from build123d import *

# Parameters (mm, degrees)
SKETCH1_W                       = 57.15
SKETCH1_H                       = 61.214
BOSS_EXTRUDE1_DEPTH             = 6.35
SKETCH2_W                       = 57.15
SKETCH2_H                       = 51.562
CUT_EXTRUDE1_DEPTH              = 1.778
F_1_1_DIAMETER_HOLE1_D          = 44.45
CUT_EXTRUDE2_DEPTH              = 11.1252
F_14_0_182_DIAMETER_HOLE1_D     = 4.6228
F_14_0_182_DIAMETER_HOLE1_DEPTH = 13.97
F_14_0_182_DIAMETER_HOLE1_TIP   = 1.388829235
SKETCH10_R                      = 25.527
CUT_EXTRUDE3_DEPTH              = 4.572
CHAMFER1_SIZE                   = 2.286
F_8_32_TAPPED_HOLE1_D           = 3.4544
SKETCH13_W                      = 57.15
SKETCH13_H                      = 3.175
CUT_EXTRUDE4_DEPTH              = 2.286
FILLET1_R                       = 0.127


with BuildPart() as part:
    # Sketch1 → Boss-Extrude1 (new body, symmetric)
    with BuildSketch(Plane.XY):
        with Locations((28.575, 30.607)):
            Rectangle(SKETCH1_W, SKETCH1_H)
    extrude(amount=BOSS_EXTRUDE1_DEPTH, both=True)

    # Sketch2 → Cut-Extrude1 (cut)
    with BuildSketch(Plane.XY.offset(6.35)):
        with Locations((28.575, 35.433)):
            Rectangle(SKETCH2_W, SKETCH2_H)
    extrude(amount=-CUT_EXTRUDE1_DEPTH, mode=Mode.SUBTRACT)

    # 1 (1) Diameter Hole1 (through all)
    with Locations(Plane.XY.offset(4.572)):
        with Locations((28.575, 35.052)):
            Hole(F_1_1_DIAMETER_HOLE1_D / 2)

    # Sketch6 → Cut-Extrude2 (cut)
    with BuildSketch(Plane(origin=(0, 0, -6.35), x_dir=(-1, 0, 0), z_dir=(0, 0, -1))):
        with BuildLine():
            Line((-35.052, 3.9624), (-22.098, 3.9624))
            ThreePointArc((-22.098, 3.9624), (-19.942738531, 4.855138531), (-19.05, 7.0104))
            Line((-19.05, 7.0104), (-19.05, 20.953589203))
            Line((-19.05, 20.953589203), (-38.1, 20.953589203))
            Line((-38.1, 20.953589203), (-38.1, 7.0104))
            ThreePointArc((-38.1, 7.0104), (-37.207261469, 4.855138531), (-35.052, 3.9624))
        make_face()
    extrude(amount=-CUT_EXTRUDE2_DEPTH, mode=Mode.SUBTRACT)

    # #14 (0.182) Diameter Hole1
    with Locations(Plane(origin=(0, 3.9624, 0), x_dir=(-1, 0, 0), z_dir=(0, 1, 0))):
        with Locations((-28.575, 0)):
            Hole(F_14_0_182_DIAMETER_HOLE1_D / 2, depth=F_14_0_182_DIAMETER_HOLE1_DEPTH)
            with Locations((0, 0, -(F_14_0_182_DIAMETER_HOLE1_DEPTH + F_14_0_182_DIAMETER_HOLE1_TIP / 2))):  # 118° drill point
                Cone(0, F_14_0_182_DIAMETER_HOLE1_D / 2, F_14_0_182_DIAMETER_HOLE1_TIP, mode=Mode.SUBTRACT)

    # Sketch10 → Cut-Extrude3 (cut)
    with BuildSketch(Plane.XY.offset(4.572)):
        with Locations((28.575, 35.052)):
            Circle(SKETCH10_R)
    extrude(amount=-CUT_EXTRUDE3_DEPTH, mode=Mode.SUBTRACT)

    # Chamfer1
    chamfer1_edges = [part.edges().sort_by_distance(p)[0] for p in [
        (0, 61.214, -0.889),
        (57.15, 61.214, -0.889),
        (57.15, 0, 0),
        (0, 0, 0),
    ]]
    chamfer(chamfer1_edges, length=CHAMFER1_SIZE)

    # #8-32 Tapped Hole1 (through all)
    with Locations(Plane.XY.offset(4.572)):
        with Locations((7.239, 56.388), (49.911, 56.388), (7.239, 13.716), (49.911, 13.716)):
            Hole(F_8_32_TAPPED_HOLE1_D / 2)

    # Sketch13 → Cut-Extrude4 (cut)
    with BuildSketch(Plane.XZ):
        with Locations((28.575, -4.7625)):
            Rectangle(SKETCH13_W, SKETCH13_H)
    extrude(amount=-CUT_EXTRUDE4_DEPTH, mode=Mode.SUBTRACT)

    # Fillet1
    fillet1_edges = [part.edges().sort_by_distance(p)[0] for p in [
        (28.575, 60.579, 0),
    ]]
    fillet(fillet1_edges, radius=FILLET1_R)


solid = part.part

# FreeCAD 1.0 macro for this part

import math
import FreeCAD as App
import Part
import Sketcher
Q = App.Units.Quantity


def edges_at(feature, points):
    """Names of the edges that pass closest to the given points."""
    edges = feature.Shape.Edges
    near = lambda p: min(range(len(edges)), key=lambda i: edges[i].distToShape(Part.Vertex(*p))[0])
    return sorted({f"Edge{near(p) + 1}" for p in points})

doc = App.newDocument("Part")
body = doc.addObject("PartDesign::Body", "Body")

# Sketch on XY plane
sketch1 = body.newObject("Sketcher::SketchObject", "Sketch")
sketch1.AttachmentSupport = (doc.getObject("XY_Plane"), [""])
sketch1.MapMode = "FlatFace"
sketch1.addGeometry(Part.LineSegment(App.Vector(0, 61, 0), App.Vector(0, 0, 0)), False)
sketch1.addGeometry(Part.LineSegment(App.Vector(0, 0, 0), App.Vector(57, 0, 0)), False)
sketch1.addGeometry(Part.LineSegment(App.Vector(57, 0, 0), App.Vector(57, 61, 0)), False)
sketch1.addGeometry(Part.LineSegment(App.Vector(57, 61, 0), App.Vector(0, 61, 0)), False)
sketch1.addConstraint(Sketcher.Constraint("Coincident", 0, 2, 1, 1))
sketch1.addConstraint(Sketcher.Constraint("Coincident", 1, 2, 2, 1))
sketch1.addConstraint(Sketcher.Constraint("Coincident", 2, 2, 3, 1))
sketch1.addConstraint(Sketcher.Constraint("Coincident", 3, 2, 0, 1))
sketch1.addConstraint(Sketcher.Constraint("Vertical", 0))
sketch1.addConstraint(Sketcher.Constraint("Horizontal", 1))
sketch1.addConstraint(Sketcher.Constraint("Vertical", 2))
sketch1.addConstraint(Sketcher.Constraint("Horizontal", 3))
sketch1.addConstraint(Sketcher.Constraint("Coincident", 0, 2, -1, 1))
sketch1.addConstraint(Sketcher.Constraint("DistanceX", 1, 1, 1, 2, Q("2.25 in")))
sketch1.addConstraint(Sketcher.Constraint("DistanceY", 0, 2, 0, 1, Q("2.41 in")))
pad1 = body.newObject("PartDesign::Pad", "Pad")
pad1.Profile = sketch1
pad1.Length = Q("0.5 in")
pad1.Midplane = True

# Sketch on XY plane
sketch2 = body.newObject("Sketcher::SketchObject", "Sketch001")
sketch2.AttachmentSupport = (doc.getObject("XY_Plane"), [""])
sketch2.MapMode = "FlatFace"
sketch2.AttachmentOffset = App.Placement(App.Vector(0, 0, 0.25 * 25.4), App.Rotation())
sketch2.addGeometry(Part.LineSegment(App.Vector(0, 61, 0), App.Vector(0, 10, 0)), False)
sketch2.addGeometry(Part.LineSegment(App.Vector(0, 10, 0), App.Vector(57, 10, 0)), False)
sketch2.addGeometry(Part.LineSegment(App.Vector(57, 10, 0), App.Vector(57, 61, 0)), False)
sketch2.addGeometry(Part.LineSegment(App.Vector(57, 61, 0), App.Vector(0, 61, 0)), False)
sketch2.addConstraint(Sketcher.Constraint("Coincident", 0, 2, 1, 1))
sketch2.addConstraint(Sketcher.Constraint("Coincident", 1, 2, 2, 1))
sketch2.addConstraint(Sketcher.Constraint("Coincident", 2, 2, 3, 1))
sketch2.addConstraint(Sketcher.Constraint("Coincident", 3, 2, 0, 1))
sketch2.addConstraint(Sketcher.Constraint("Vertical", 0))
sketch2.addConstraint(Sketcher.Constraint("Horizontal", 1))
sketch2.addConstraint(Sketcher.Constraint("Vertical", 2))
sketch2.addConstraint(Sketcher.Constraint("Horizontal", 3))
sketch2.addConstraint(Sketcher.Constraint("PointOnObject", 0, 2, -2))
sketch2.addConstraint(Sketcher.Constraint("DistanceX", 1, 1, 1, 2, Q("2.25 in")))
sketch2.addConstraint(Sketcher.Constraint("DistanceY", 0, 2, 0, 1, Q("2.03 in")))
sketch2.addConstraint(Sketcher.Constraint("DistanceY", -1, 1, 0, 2, Q("0.38 in")))
pocket1 = body.newObject("PartDesign::Pocket", "Pocket")
pocket1.Profile = sketch2
pocket1.Length = Q("0.07 in")

# Sketch on XY plane
sketch3 = body.newObject("Sketcher::SketchObject", "Sketch002")
sketch3.AttachmentSupport = (doc.getObject("XY_Plane"), [""])
sketch3.MapMode = "FlatFace"
sketch3.AttachmentOffset = App.Placement(App.Vector(0, 0, 0.18 * 25.4), App.Rotation())
sketch3.addGeometry(Part.Circle(App.Vector(29, 35, 0), App.Vector(0, 0, 1), 22), False)
sketch3.addConstraint(Sketcher.Constraint("Diameter", 0, Q("1.75 in")))
sketch3.addConstraint(Sketcher.Constraint("DistanceY", -1, 1, 0, 3, Q("1.38 in")))
sketch3.addConstraint(Sketcher.Constraint("DistanceX", -1, 1, 0, 3, Q("1.125 in")))
doc.recompute()
hole = body.newObject("PartDesign::Hole", "Hole")
hole.Profile = sketch3
hole.ThreadType = "None"
hole.Diameter = Q("1.75 in")
hole.DepthType = "ThroughAll"

# Sketch on XY plane
sketch4 = body.newObject("Sketcher::SketchObject", "Sketch003")
sketch4.AttachmentSupport = (doc.getObject("XY_Plane"), [""])
sketch4.MapMode = "FlatFace"
sketch4.AttachmentOffset = App.Placement(App.Vector(0, 0, -0.25 * 25.4), App.Rotation())
sketch4.addGeometry(Part.LineSegment(App.Vector(35.1, 4, 0), App.Vector(22.1, 4, 0)), False)
sketch4.addGeometry(Part.ArcOfCircle(Part.Circle(App.Vector(22.1, 7, 0), App.Vector(0, 0, 1), 3), math.radians(180), math.radians(270)), False)
sketch4.addGeometry(Part.LineSegment(App.Vector(19.1, 7, 0), App.Vector(19.1, 21, 0)), False)
sketch4.addGeometry(Part.LineSegment(App.Vector(19.1, 21, 0), App.Vector(38.1, 21, 0)), False)
sketch4.addGeometry(Part.LineSegment(App.Vector(38.1, 21, 0), App.Vector(38.1, 7, 0)), False)
sketch4.addGeometry(Part.ArcOfCircle(Part.Circle(App.Vector(35.1, 7, 0), App.Vector(0, 0, 1), 3), math.radians(-90), math.radians(0)), False)
sketch4.addConstraint(Sketcher.Constraint("Tangent", 0, 2, 1, 2))
sketch4.addConstraint(Sketcher.Constraint("Tangent", 1, 1, 2, 1))
sketch4.addConstraint(Sketcher.Constraint("Coincident", 2, 2, 3, 1))
sketch4.addConstraint(Sketcher.Constraint("Coincident", 3, 2, 4, 1))
sketch4.addConstraint(Sketcher.Constraint("Tangent", 4, 2, 5, 2))
sketch4.addConstraint(Sketcher.Constraint("Tangent", 5, 1, 0, 1))
sketch4.addConstraint(Sketcher.Constraint("Horizontal", 0))
sketch4.addConstraint(Sketcher.Constraint("Vertical", 2))
sketch4.addConstraint(Sketcher.Constraint("Horizontal", 3))
sketch4.addConstraint(Sketcher.Constraint("Vertical", 4))
sketch4.addConstraint(Sketcher.Constraint("Equal", 1, 5))
sketch4.addConstraint(Sketcher.Constraint("Radius", 1, Q("0.12 in")))
sketch4.addConstraint(Sketcher.Constraint("DistanceX", 0, 2, 0, 1, Q("0.51 in")))
sketch4.addConstraint(Sketcher.Constraint("DistanceX", -1, 1, 3, 2, Q("1.5 in")))
sketch4.addConstraint(Sketcher.Constraint("DistanceY", -1, 1, 1, 3, Q("0.276 in")))
sketch4.addConstraint(Sketcher.Constraint("DistanceY", 2, 1, 2, 2, Q("13.943189 mm")))
pocket2 = body.newObject("PartDesign::Pocket", "Pocket001")
pocket2.Profile = sketch4
pocket2.Length = Q("0.438 in")
pocket2.Reversed = True

# Sketch on XZ plane
sketch5 = body.newObject("Sketcher::SketchObject", "Sketch004")
sketch5.AttachmentSupport = (doc.getObject("XZ_Plane"), [""])
sketch5.MapMode = "FlatFace"
sketch5.AttachmentOffset = App.Placement(App.Vector(0, 0, -0.156 * 25.4), App.Rotation())
sketch5.addGeometry(Part.Circle(App.Vector(28.6, 0, 0), App.Vector(0, 0, 1), 2.3), False)
sketch5.addConstraint(Sketcher.Constraint("PointOnObject", 0, 3, -1))
sketch5.addConstraint(Sketcher.Constraint("Diameter", 0, Q("0.182 in")))
sketch5.addConstraint(Sketcher.Constraint("DistanceX", -1, 1, 0, 3, Q("1.125 in")))
doc.recompute()
hole2 = body.newObject("PartDesign::Hole", "Hole001")
hole2.Profile = sketch5
hole2.ThreadType = "None"
hole2.Diameter = Q("0.182 in")
hole2.DepthType = "Dimension"
hole2.Depth = Q("0.55 in")
hole2.DrillPoint = "Angled"
hole2.DrillPointAngle = 118
hole2.Reversed = True

# Sketch on XY plane
sketch6 = body.newObject("Sketcher::SketchObject", "Sketch005")
sketch6.AttachmentSupport = (doc.getObject("XY_Plane"), [""])
sketch6.MapMode = "FlatFace"
sketch6.AttachmentOffset = App.Placement(App.Vector(0, 0, 0.18 * 25.4), App.Rotation())
sketch6.addGeometry(Part.Circle(App.Vector(29, 35, 0), App.Vector(0, 0, 1), 26), False)
sketch6.addConstraint(Sketcher.Constraint("Diameter", 0, Q("2.01 in")))
sketch6.addConstraint(Sketcher.Constraint("DistanceY", -1, 1, 0, 3, Q("1.38 in")))
sketch6.addConstraint(Sketcher.Constraint("DistanceX", -1, 1, 0, 3, Q("1.125 in")))
pocket3 = body.newObject("PartDesign::Pocket", "Pocket002")
pocket3.Profile = sketch6
pocket3.Length = Q("0.18 in")
doc.recompute()

chamfer = body.newObject("PartDesign::Chamfer", "Chamfer")
chamfer.Base = (pocket3, edges_at(pocket3, [
    (0, 61.214, -0.889),
    (57.15, 61.214, -0.889),
    (57.15, 0, 0),
    (0, 0, 0),
]))
chamfer.Size = Q("0.09 in")

# Sketch on XY plane
sketch7 = body.newObject("Sketcher::SketchObject", "Sketch006")
sketch7.AttachmentSupport = (doc.getObject("XY_Plane"), [""])
sketch7.MapMode = "FlatFace"
sketch7.AttachmentOffset = App.Placement(App.Vector(0, 0, 0.18 * 25.4), App.Rotation())
sketch7.addGeometry(Part.Circle(App.Vector(7.2, 56.4, 0), App.Vector(0, 0, 1), 1.7), False)
sketch7.addGeometry(Part.Circle(App.Vector(49.9, 56.4, 0), App.Vector(0, 0, 1), 1.7), False)
sketch7.addGeometry(Part.Circle(App.Vector(7.2, 13.7, 0), App.Vector(0, 0, 1), 1.7), False)
sketch7.addGeometry(Part.Circle(App.Vector(49.9, 13.7, 0), App.Vector(0, 0, 1), 1.7), False)
sketch7.addConstraint(Sketcher.Constraint("Equal", 0, 1))
sketch7.addConstraint(Sketcher.Constraint("Equal", 1, 2))
sketch7.addConstraint(Sketcher.Constraint("Equal", 2, 3))
sketch7.addConstraint(Sketcher.Constraint("Horizontal", 0, 3, 1, 3))
sketch7.addConstraint(Sketcher.Constraint("Horizontal", 2, 3, 3, 3))
sketch7.addConstraint(Sketcher.Constraint("Vertical", 0, 3, 2, 3))
sketch7.addConstraint(Sketcher.Constraint("Vertical", 1, 3, 3, 3))
sketch7.addConstraint(Sketcher.Constraint("Diameter", 0, Q("0.136 in")))
sketch7.addConstraint(Sketcher.Constraint("DistanceY", -1, 1, 0, 3, Q("2.22 in")))
sketch7.addConstraint(Sketcher.Constraint("DistanceY", -1, 1, 2, 3, Q("0.54 in")))
sketch7.addConstraint(Sketcher.Constraint("DistanceX", 0, 3, 1, 3, Q("1.68 in")))
sketch7.addConstraint(Sketcher.Constraint("DistanceX", -1, 1, 0, 3, Q("0.285 in")))
doc.recompute()
hole3 = body.newObject("PartDesign::Hole", "Hole002")
hole3.Profile = sketch7
hole3.ThreadType = "None"
hole3.Diameter = Q("0.136 in")
hole3.DepthType = "ThroughAll"

# Sketch on XZ plane
sketch8 = body.newObject("Sketcher::SketchObject", "Sketch007")
sketch8.AttachmentSupport = (doc.getObject("XZ_Plane"), [""])
sketch8.MapMode = "FlatFace"
sketch8.addGeometry(Part.LineSegment(App.Vector(0, -3.2, 0), App.Vector(0, -6.3, 0)), False)
sketch8.addGeometry(Part.LineSegment(App.Vector(0, -6.3, 0), App.Vector(57.1, -6.3, 0)), False)
sketch8.addGeometry(Part.LineSegment(App.Vector(57.1, -6.3, 0), App.Vector(57.1, -3.2, 0)), False)
sketch8.addGeometry(Part.LineSegment(App.Vector(57.1, -3.2, 0), App.Vector(0, -3.2, 0)), False)
sketch8.addConstraint(Sketcher.Constraint("Coincident", 0, 2, 1, 1))
sketch8.addConstraint(Sketcher.Constraint("Coincident", 1, 2, 2, 1))
sketch8.addConstraint(Sketcher.Constraint("Coincident", 2, 2, 3, 1))
sketch8.addConstraint(Sketcher.Constraint("Coincident", 3, 2, 0, 1))
sketch8.addConstraint(Sketcher.Constraint("Vertical", 0))
sketch8.addConstraint(Sketcher.Constraint("Horizontal", 1))
sketch8.addConstraint(Sketcher.Constraint("Vertical", 2))
sketch8.addConstraint(Sketcher.Constraint("Horizontal", 3))
sketch8.addConstraint(Sketcher.Constraint("PointOnObject", 0, 2, -2))
sketch8.addConstraint(Sketcher.Constraint("DistanceX", 1, 1, 1, 2, Q("2.25 in")))
sketch8.addConstraint(Sketcher.Constraint("DistanceY", 0, 2, 0, 1, Q("0.125 in")))
sketch8.addConstraint(Sketcher.Constraint("DistanceY", 0, 2, -1, 1, Q("0.25 in")))
pocket4 = body.newObject("PartDesign::Pocket", "Pocket003")
pocket4.Profile = sketch8
pocket4.Length = Q("0.09 in")
doc.recompute()

fillet = body.newObject("PartDesign::Fillet", "Fillet")
fillet.Base = (pocket4, edges_at(pocket4, [(28.575, 60.579, 0)]))
fillet.Radius = Q("0.005 in")

doc.recompute()
